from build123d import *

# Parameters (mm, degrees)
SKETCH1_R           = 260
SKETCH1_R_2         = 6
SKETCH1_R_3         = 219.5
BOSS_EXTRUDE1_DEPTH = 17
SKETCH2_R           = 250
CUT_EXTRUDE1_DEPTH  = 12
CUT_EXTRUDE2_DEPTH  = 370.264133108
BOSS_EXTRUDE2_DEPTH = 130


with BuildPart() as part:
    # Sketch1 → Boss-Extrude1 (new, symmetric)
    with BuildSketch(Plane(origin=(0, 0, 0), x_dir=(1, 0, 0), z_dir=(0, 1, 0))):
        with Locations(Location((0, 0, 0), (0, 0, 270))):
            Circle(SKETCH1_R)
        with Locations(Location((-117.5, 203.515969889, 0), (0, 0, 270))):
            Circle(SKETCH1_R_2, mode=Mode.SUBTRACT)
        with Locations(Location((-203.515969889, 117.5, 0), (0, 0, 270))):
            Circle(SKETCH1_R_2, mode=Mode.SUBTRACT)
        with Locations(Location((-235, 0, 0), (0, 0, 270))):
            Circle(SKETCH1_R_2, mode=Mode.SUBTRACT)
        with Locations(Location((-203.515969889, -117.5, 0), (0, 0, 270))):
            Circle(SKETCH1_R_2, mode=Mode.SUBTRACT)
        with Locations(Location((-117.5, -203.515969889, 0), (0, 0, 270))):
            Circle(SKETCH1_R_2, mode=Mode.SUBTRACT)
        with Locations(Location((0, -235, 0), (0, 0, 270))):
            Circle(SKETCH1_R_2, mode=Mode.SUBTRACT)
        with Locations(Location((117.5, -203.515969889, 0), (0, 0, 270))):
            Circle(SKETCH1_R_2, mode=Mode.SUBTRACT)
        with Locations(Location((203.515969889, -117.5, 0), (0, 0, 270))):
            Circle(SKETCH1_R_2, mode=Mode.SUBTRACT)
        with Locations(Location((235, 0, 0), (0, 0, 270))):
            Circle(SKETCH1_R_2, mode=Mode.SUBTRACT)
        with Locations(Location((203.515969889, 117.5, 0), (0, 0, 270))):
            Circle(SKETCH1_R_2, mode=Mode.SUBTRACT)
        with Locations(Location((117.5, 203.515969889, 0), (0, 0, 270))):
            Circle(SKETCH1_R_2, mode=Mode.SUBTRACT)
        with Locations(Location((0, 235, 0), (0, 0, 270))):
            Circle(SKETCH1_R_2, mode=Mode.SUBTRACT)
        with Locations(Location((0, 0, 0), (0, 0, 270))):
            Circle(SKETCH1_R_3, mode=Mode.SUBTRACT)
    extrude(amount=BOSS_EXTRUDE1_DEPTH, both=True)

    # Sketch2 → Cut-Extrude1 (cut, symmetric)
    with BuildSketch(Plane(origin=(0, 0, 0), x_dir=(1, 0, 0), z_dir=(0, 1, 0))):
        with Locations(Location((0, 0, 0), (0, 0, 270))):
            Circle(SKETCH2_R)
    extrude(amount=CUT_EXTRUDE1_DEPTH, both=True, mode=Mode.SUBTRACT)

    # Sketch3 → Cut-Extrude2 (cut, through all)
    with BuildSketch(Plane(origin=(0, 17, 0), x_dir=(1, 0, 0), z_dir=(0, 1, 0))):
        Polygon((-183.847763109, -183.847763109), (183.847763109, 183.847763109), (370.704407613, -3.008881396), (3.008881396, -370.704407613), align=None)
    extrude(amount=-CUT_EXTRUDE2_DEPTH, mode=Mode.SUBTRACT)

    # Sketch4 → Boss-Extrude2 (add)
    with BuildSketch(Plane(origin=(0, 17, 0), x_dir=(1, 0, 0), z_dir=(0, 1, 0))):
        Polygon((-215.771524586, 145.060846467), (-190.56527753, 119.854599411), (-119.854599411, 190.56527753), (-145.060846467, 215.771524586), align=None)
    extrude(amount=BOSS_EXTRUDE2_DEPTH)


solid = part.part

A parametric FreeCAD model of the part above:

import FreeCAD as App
import Part
import Sketcher
from FreeCAD import Vector
Q = App.Units.Quantity


def add_polygon(sketch, points):
    """Adds a closed chain of lines whose ends are joined by coincident constraints."""
    first, n = sketch.GeometryCount, len(points)
    for a, b in zip(points, points[1:] + points[:1]):
        sketch.addGeometry(Part.LineSegment(App.Vector(*a, 0), App.Vector(*b, 0)), False)
    for i in range(n):
        sketch.addConstraint(Sketcher.Constraint("Coincident", first + i, 2, first + (i + 1) % n, 1))

doc = App.newDocument("Part")
body = doc.addObject("PartDesign::Body", "Body")

sketch1 = body.newObject("Sketcher::SketchObject", "Sketch")
sketch1.AttachmentSupport = (doc.getObject("XZ_Plane"), [""])
sketch1.MapMode = "FlatFace"
sketch1.addGeometry([
    Part.Circle(Vector(0, 0, 0), Vector(0, 0, 1), 260),
    Part.Circle(Vector(-204, -118, 0), Vector(0, 0, 1), 6),
    Part.Circle(Vector(-118, -204, 0), Vector(0, 0, 1), 6),
    Part.Circle(Vector(0, -235, 0), Vector(0, 0, 1), 6),
    Part.Circle(Vector(-235, 0, 0), Vector(0, 0, 1), 6),
    Part.Circle(Vector(-204, 118, 0), Vector(0, 0, 1), 6),
    Part.Circle(Vector(-118, 204, 0), Vector(0, 0, 1), 6),
    Part.Circle(Vector(118, -204, 0), Vector(0, 0, 1), 6),
    Part.Circle(Vector(204, -118, 0), Vector(0, 0, 1), 6),
    Part.Circle(Vector(235, 0, 0), Vector(0, 0, 1), 6),
    Part.Circle(Vector(0, 0, 0), Vector(0, 0, 1), 220),
    Part.Circle(Vector(0, 235, 0), Vector(0, 0, 1), 6),
    Part.Circle(Vector(118, 204, 0), Vector(0, 0, 1), 6),
    Part.Circle(Vector(204, 118, 0), Vector(0, 0, 1), 6),
], False)
sketch1.addConstraint([
    Sketcher.Constraint("Coincident", 0, 3, -1, 1),
    Sketcher.Constraint("Coincident", 10, 3, -1, 1),
    Sketcher.Constraint("Equal", 1, 2),
    Sketcher.Constraint("Equal", 2, 3),
    Sketcher.Constraint("Equal", 3, 4),
    Sketcher.Constraint("Equal", 4, 5),
    Sketcher.Constraint("Equal", 5, 6),
    Sketcher.Constraint("Equal", 6, 7),
    Sketcher.Constraint("Equal", 7, 8),
    Sketcher.Constraint("Equal", 8, 9),
    Sketcher.Constraint("Equal", 9, 11),
    Sketcher.Constraint("Equal", 11, 12),
    Sketcher.Constraint("Equal", 12, 13),
    Sketcher.Constraint("Symmetric", 6, 3, 7, 3, -1, 1),
    Sketcher.Constraint("Symmetric", 5, 3, 8, 3, -1, 1),
    Sketcher.Constraint("Symmetric", 4, 3, 9, 3, -1, 1),
    Sketcher.Constraint("Symmetric", 3, 3, 11, 3, -1, 1),
    Sketcher.Constraint("Symmetric", 2, 3, 12, 3, -1, 1),
    Sketcher.Constraint("Symmetric", 1, 3, 13, 3, -1, 1),
    Sketcher.Constraint("Symmetric", 2, 3, 7, 3, -2),
    Sketcher.Constraint("Symmetric", 1, 3, 8, 3, -2),
    Sketcher.Constraint("PointOnObject", 3, 3, -2),
    Sketcher.Constraint("PointOnObject", 4, 3, -1),
    Sketcher.Constraint("Diameter", 0, Q("520 mm")),
    Sketcher.Constraint("Diameter", 1, Q("12 mm")),
    Sketcher.Constraint("Diameter", 10, Q("439 mm")),
    Sketcher.Constraint("DistanceY", 3, 3, -1, 1, Q("235 mm")),
    Sketcher.Constraint("DistanceX", 4, 3, -1, 1, Q("235 mm")),
    Sketcher.Constraint("DistanceY", 1, 3, 5, 3, Q("235 mm")),
    Sketcher.Constraint("DistanceX", 2, 3, 7, 3, Q("235 mm")),
    Sketcher.Constraint("DistanceX", 1, 3, -1, 1, Q("203.51597 mm")),
    Sketcher.Constraint("DistanceY", 2, 3, -1, 1, Q("203.51597 mm")),
])
pad1 = body.newObject("PartDesign::Pad", "Pad")
pad1.Profile = sketch1
pad1.Length = 34
pad1.Midplane = True

sketch2 = body.newObject("Sketcher::SketchObject", "Sketch001")
sketch2.AttachmentSupport = (doc.getObject("XZ_Plane"), [""])
sketch2.MapMode = "FlatFace"
sketch2.addGeometry(Part.Circle(Vector(0, 0, 0), Vector(0, 0, 1), 250), False)
sketch2.addConstraint([
    Sketcher.Constraint("Coincident", 0, 3, -1, 1),
    Sketcher.Constraint("Diameter", 0, Q("500 mm")),
])
pocket1 = body.newObject("PartDesign::Pocket", "Pocket")
pocket1.Profile = sketch2
pocket1.Length = 24
pocket1.Midplane = True

sketch3 = body.newObject("Sketcher::SketchObject", "Sketch002")
sketch3.AttachmentSupport = (doc.getObject("XZ_Plane"), [""])
sketch3.MapMode = "FlatFace"
sketch3.AttachmentOffset = App.Placement(Vector(0, 0, -17), App.Rotation())
add_polygon(sketch3, [(184, -184), (-184, 184), (3, 371), (371, 3)])
sketch3.addConstraint([
    Sketcher.Constraint("Symmetric", 0, 2, 3, 2, -1, 1),
    Sketcher.Constraint("Perpendicular", 0, 1),
    Sketcher.Constraint("Perpendicular", 1, 2),
    Sketcher.Constraint("Perpendicular", 2, 3),
    Sketcher.Constraint("Angle", 0, Q("135 deg")),
    Sketcher.Constraint("Distance", 0, Q("520 mm")),
    Sketcher.Constraint("Distance", 1, Q("264.255201 mm")),
])
pocket2 = body.newObject("PartDesign::Pocket", "Pocket001")
pocket2.Profile = sketch3
pocket2.Type = "ThroughAll"
pocket2.Reversed = True

sketch4 = body.newObject("Sketcher::SketchObject", "Sketch003")
sketch4.AttachmentSupport = (doc.getObject("XZ_Plane"), [""])
sketch4.MapMode = "FlatFace"
sketch4.AttachmentOffset = App.Placement(Vector(0, 0, -17), App.Rotation())
add_polygon(sketch4, [(-216, -145), (-191, -120), (-120, -191), (-145, -216)])
sketch4.addConstraint([
    Sketcher.Constraint("Perpendicular", 0, 1),
    Sketcher.Constraint("Perpendicular", 1, 2),
    Sketcher.Constraint("Perpendicular", 2, 3),
    Sketcher.Constraint("Angle", 0, Q("45 deg")),
    Sketcher.Constraint("Distance", 1, Q("100 mm")),
    Sketcher.Constraint("DistanceY", 0, 2, -1, 1, Q("119.854599 mm")),
    Sketcher.Constraint("DistanceX", 1, 2, -1, 1, Q("119.854599 mm")),
    Sketcher.Constraint("DistanceX", 0, 2, 2, 2, Q("45.504431 mm")),
])
pad2 = body.newObject("PartDesign::Pad", "Pad001")
pad2.Profile = sketch4
pad2.Length = 130
pad2.Reversed = True

doc.recompute()
